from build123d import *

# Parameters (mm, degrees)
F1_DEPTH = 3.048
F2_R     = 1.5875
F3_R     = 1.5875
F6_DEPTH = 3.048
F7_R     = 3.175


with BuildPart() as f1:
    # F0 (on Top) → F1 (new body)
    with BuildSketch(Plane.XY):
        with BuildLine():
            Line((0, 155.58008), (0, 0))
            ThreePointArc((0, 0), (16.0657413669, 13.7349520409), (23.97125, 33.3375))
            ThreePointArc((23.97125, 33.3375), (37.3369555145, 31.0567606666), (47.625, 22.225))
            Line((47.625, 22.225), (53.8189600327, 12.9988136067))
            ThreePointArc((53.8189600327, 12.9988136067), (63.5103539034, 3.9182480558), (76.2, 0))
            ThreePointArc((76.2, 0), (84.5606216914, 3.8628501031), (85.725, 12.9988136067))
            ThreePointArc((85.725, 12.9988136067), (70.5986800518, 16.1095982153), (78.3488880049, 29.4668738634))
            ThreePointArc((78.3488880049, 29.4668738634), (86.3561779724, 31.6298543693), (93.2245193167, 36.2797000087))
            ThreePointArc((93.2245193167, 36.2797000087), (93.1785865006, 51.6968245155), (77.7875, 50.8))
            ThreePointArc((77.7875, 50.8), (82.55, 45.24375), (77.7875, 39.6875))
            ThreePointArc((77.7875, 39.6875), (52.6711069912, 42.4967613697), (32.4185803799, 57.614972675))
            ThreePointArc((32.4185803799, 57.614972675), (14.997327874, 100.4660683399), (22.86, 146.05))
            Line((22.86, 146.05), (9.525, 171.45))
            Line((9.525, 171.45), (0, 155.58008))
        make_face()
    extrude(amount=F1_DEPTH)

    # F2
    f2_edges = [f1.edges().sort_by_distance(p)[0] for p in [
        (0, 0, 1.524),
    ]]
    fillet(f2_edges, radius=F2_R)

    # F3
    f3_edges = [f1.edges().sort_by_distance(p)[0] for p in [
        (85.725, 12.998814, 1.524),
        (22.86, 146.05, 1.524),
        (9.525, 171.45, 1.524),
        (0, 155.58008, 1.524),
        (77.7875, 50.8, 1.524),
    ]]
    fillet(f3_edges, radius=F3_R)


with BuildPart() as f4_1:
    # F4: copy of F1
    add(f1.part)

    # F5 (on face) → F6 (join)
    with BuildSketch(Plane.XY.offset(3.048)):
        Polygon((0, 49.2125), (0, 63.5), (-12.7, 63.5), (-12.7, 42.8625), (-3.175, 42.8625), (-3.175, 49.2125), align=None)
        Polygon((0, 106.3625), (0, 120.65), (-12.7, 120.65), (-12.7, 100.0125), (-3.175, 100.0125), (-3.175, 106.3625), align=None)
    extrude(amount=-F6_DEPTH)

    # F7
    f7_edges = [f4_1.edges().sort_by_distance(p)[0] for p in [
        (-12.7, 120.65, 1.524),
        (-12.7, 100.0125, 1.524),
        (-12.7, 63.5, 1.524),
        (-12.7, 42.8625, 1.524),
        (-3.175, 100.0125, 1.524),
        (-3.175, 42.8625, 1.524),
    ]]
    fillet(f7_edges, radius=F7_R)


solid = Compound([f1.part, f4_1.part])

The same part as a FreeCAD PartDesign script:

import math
import FreeCAD as App
import Part
import Sketcher
Q = App.Units.Quantity


def edges_at(feature, points):
    """Names of the edges that pass closest to the given points."""
    edges = feature.Shape.Edges
    near = lambda p: min(range(len(edges)), key=lambda i: edges[i].distToShape(Part.Vertex(*p))[0])
    return sorted({f"Edge{near(p) + 1}" for p in points})


def add_polygon(sketch, points):
    """Adds a closed chain of lines whose ends are joined by coincident constraints."""
    first, n = sketch.GeometryCount, len(points)
    for a, b in zip(points, points[1:] + points[:1]):
        sketch.addGeometry(Part.LineSegment(App.Vector(*a, 0), App.Vector(*b, 0)), False)
    for i in range(n):
        sketch.addConstraint(Sketcher.Constraint("Coincident", first + i, 2, first + (i + 1) % n, 1))

doc = App.newDocument("Part")
body = doc.addObject("PartDesign::Body", "Body")

# Sketch on XY plane
sketch1 = body.newObject("Sketcher::SketchObject", "Sketch")
sketch1.AttachmentSupport = (doc.getObject("XY_Plane"), [""])
sketch1.MapMode = "FlatFace"
sketch1.addGeometry(Part.LineSegment(App.Vector(0, 156, 0), App.Vector(0, 0, 0)), False)
sketch1.addGeometry(Part.ArcOfCircle(Part.Circle(App.Vector(-20, 40, 0), App.Vector(0, 0, 1), 44), math.radians(-63), math.radians(-8)), False)
sketch1.addGeometry(Part.ArcOfCircle(Part.Circle(App.Vector(27, 8, 0), App.Vector(0, 0, 1), 25), math.radians(34), math.radians(96)), False)
sketch1.addGeometry(Part.LineSegment(App.Vector(48, 22, 0), App.Vector(54, 13, 0)), False)
sketch1.addGeometry(Part.ArcOfCircle(Part.Circle(App.Vector(78, 29, 0), App.Vector(0, 0, 1), 30), math.radians(-146), math.radians(-94)), False)
sketch1.addGeometry(Part.ArcOfCircle(Part.Circle(App.Vector(77, 9, 0), App.Vector(0, 0, 1), 10), math.radians(-94), math.radians(22)), False)
sketch1.addGeometry(Part.ArcOfCircle(Part.Circle(App.Vector(79, 20, 0), App.Vector(0, 0, 1), 10), math.radians(96), math.radians(313)), False)
sketch1.addGeometry(Part.ArcOfCircle(Part.Circle(App.Vector(76, 54, 0), App.Vector(0, 0, 1), 25), math.radians(-84), math.radians(-46)), False)
sketch1.addGeometry(Part.ArcOfCircle(Part.Circle(App.Vector(86, 44, 0), App.Vector(0, 0, 1), 11), math.radians(-46), math.radians(140)), False)
sketch1.addGeometry(Part.ArcOfCircle(Part.Circle(App.Vector(77, 45, 0), App.Vector(0, 0, 1), 6), math.radians(-81), math.radians(81)), False)
sketch1.addGeometry(Part.ArcOfCircle(Part.Circle(App.Vector(70, 87, 0), App.Vector(0, 0, 1), 48), math.radians(-142), math.radians(-81)), False)
sketch1.addGeometry(Part.ArcOfCircle(Part.Circle(App.Vector(99, 110, 0), App.Vector(0, 0, 1), 84), math.radians(154), math.radians(218)), False)
sketch1.addGeometry(Part.LineSegment(App.Vector(23, 146, 0), App.Vector(10, 171, 0)), False)
sketch1.addGeometry(Part.LineSegment(App.Vector(10, 171, 0), App.Vector(0, 156, 0)), False)
sketch1.addConstraint(Sketcher.Constraint("Coincident", 0, 2, 1, 1))
sketch1.addConstraint(Sketcher.Constraint("Coincident", 1, 2, 2, 2))
sketch1.addConstraint(Sketcher.Constraint("Tangent", 2, 1, 3, 1))
sketch1.addConstraint(Sketcher.Constraint("Tangent", 3, 2, 4, 1))
sketch1.addConstraint(Sketcher.Constraint("Tangent", 4, 2, 5, 1))
sketch1.addConstraint(Sketcher.Constraint("Coincident", 5, 2, 6, 2))
sketch1.addConstraint(Sketcher.Constraint("Tangent", 6, 1, 7, 1))
sketch1.addConstraint(Sketcher.Constraint("Tangent", 7, 2, 8, 1))
sketch1.addConstraint(Sketcher.Constraint("Coincident", 8, 2, 9, 2))
sketch1.addConstraint(Sketcher.Constraint("Tangent", 9, 1, 10, 2))
sketch1.addConstraint(Sketcher.Constraint("Tangent", 10, 1, 11, 2))
sketch1.addConstraint(Sketcher.Constraint("Coincident", 11, 1, 12, 1))
sketch1.addConstraint(Sketcher.Constraint("Coincident", 12, 2, 13, 1))
sketch1.addConstraint(Sketcher.Constraint("Coincident", 13, 2, 0, 1))
sketch1.addConstraint(Sketcher.Constraint("Vertical", 0))
sketch1.addConstraint(Sketcher.Constraint("Coincident", 0, 2, -1, 1))
sketch1.addConstraint(Sketcher.Constraint("Coincident", 6, 1, 4, 3))
sketch1.addConstraint(Sketcher.Constraint("PointOnObject", 4, 2, -1))
sketch1.addConstraint(Sketcher.Constraint("Horizontal", 3, 2, 5, 2))
sketch1.addConstraint(Sketcher.Constraint("Vertical", 8, 2, 9, 1))
sketch1.addConstraint(Sketcher.Constraint("Radius", 2, Q("1 in")))
sketch1.addConstraint(Sketcher.Constraint("Radius", 10, Q("1.9 in")))
sketch1.addConstraint(Sketcher.Constraint("Radius", 1, Q("1.75 in")))
sketch1.addConstraint(Sketcher.Constraint("DistanceX", -1, 1, 4, 2, Q("3 in")))
sketch1.addConstraint(Sketcher.Constraint("DistanceY", -1, 1, 8, 2, Q("2 in")))
sketch1.addConstraint(Sketcher.Constraint("Radius", 11, Q("3.3125 in")))
sketch1.addConstraint(Sketcher.Constraint("DistanceY", 11, 1, 12, 2, Q("1 in")))
sketch1.addConstraint(Sketcher.Constraint("DistanceX", -1, 1, 11, 1, Q("0.9 in")))
sketch1.addConstraint(Sketcher.Constraint("DistanceY", -1, 1, 11, 1, Q("5.75 in")))
sketch1.addConstraint(Sketcher.Constraint("Distance", 3, Q("0.4375 in")))
sketch1.addConstraint(Sketcher.Constraint("DistanceY", 0, 2, 0, 1, Q("6.1252 in")))
sketch1.addConstraint(Sketcher.Constraint("DistanceY", -1, 1, 9, 3, Q("1.78125 in")))
sketch1.addConstraint(Sketcher.Constraint("DistanceY", -1, 1, 1, 2, Q("1.3125 in")))
sketch1.addConstraint(Sketcher.Constraint("DistanceX", -1, 1, 2, 1, Q("1.875 in")))
sketch1.addConstraint(Sketcher.Constraint("DistanceY", -1, 1, 2, 1, Q("0.875 in")))
sketch1.addConstraint(Sketcher.Constraint("DistanceX", -1, 1, 5, 2, Q("3.375 in")))
sketch1.addConstraint(Sketcher.Constraint("DistanceX", -1, 1, 8, 2, Q("3.0625 in")))
sketch1.addConstraint(Sketcher.Constraint("DistanceX", -1, 1, 12, 2, Q("0.375 in")))
sketch1.addConstraint(Sketcher.Constraint("Radius", 5, 9.507641))
sketch1.addConstraint(Sketcher.Constraint("Radius", 6, 9.514019))
sketch1.addConstraint(Sketcher.Constraint("Radius", 8, 10.612648))
sketch1.addConstraint(Sketcher.Constraint("Radius", 7, 25.151146))
sketch1.addConstraint(Sketcher.Constraint("Radius", 9, 5.622396))
pad1 = body.newObject("PartDesign::Pad", "Pad")
pad1.Profile = sketch1
pad1.Length = Q("0.12 in")
doc.recompute()

fillet = body.newObject("PartDesign::Fillet", "Fillet")
fillet.Base = (pad1, edges_at(pad1, [(0, 0, 1.524)]))
fillet.Radius = Q("0.0625 in")
doc.recompute()

fillet2 = body.newObject("PartDesign::Fillet", "Fillet001")
fillet2.Base = (fillet, edges_at(fillet, [
    (85.725, 12.999, 1.524),
    (22.86, 146.05, 1.524),
    (9.525, 171.45, 1.524),
    (0, 155.58, 1.524),
    (77.787, 50.8, 1.524),
]))
fillet2.Radius = Q("0.0625 in")
body2 = doc.addObject("PartDesign::Body", "Body001")
doc.recompute()

body2.BaseFeature = body
doc.recompute()

# Sketch on XY plane
sketch2 = body2.newObject("Sketcher::SketchObject", "Sketch001")
sketch2.AttachmentSupport = (doc.getObject("XY_Plane001"), [""])
sketch2.MapMode = "FlatFace"
sketch2.AttachmentOffset = App.Placement(App.Vector(0, 0, 0.12 * 25.4), App.Rotation())
add_polygon(sketch2, [(0, 49.2), (0, 63.5), (-12.7, 63.5), (-12.7, 42.9), (-3.2, 42.9), (-3.2, 49.2)])  # lines 0-5
add_polygon(sketch2, [(0, 106.4), (0, 120.7), (-12.7, 120.7), (-12.7, 100), (-3.2, 100), (-3.2, 106.4)])  # lines 6-11
sketch2.addConstraint(Sketcher.Constraint("Vertical", 0))
sketch2.addConstraint(Sketcher.Constraint("Horizontal", 1))
sketch2.addConstraint(Sketcher.Constraint("Vertical", 2))
sketch2.addConstraint(Sketcher.Constraint("Horizontal", 3))
sketch2.addConstraint(Sketcher.Constraint("Vertical", 4))
sketch2.addConstraint(Sketcher.Constraint("Horizontal", 5))
sketch2.addConstraint(Sketcher.Constraint("Vertical", 6))
sketch2.addConstraint(Sketcher.Constraint("Horizontal", 7))
sketch2.addConstraint(Sketcher.Constraint("Vertical", 8))
sketch2.addConstraint(Sketcher.Constraint("Horizontal", 9))
sketch2.addConstraint(Sketcher.Constraint("Vertical", 10))
sketch2.addConstraint(Sketcher.Constraint("Horizontal", 11))
sketch2.addConstraint(Sketcher.Constraint("PointOnObject", 0, 2, -2))
sketch2.addConstraint(Sketcher.Constraint("PointOnObject", 6, 2, -2))
sketch2.addConstraint(Sketcher.Constraint("Vertical", 2, 2, 7, 2))
sketch2.addConstraint(Sketcher.Constraint("Vertical", 4, 2, 9, 2))
sketch2.addConstraint(Sketcher.Constraint("Equal", 0, 6))
sketch2.addConstraint(Sketcher.Constraint("Equal", 2, 8))
sketch2.addConstraint(Sketcher.Constraint("DistanceX", 1, 2, 1, 1, Q("0.5 in")))
sketch2.addConstraint(Sketcher.Constraint("DistanceY", 4, 2, 8, 2, Q("2 in")))
sketch2.addConstraint(Sketcher.Constraint("DistanceY", 4, 1, 4, 2, Q("0.25 in")))
sketch2.addConstraint(Sketcher.Constraint("DistanceY", -1, 1, 0, 2, Q("2.5 in")))
sketch2.addConstraint(Sketcher.Constraint("DistanceX", 3, 1, 3, 2, Q("0.375 in")))
sketch2.addConstraint(Sketcher.Constraint("DistanceY", 0, 1, 0, 2, Q("0.5625 in")))
pad2 = body2.newObject("PartDesign::Pad", "Pad001")
pad2.Profile = sketch2
pad2.Length = Q("0.12 in")
pad2.Reversed = True
doc.recompute()

fillet3 = body2.newObject("PartDesign::Fillet", "Fillet002")
fillet3.Base = (pad2, edges_at(pad2, [
    (-12.7, 120.65, 1.524),
    (-12.7, 100.013, 1.524),
    (-12.7, 63.5, 1.524),
    (-12.7, 42.862, 1.524),
    (-3.175, 100.013, 1.524),
    (-3.175, 42.862, 1.524),
]))
fillet3.Radius = Q("0.125 in")

doc.recompute()
